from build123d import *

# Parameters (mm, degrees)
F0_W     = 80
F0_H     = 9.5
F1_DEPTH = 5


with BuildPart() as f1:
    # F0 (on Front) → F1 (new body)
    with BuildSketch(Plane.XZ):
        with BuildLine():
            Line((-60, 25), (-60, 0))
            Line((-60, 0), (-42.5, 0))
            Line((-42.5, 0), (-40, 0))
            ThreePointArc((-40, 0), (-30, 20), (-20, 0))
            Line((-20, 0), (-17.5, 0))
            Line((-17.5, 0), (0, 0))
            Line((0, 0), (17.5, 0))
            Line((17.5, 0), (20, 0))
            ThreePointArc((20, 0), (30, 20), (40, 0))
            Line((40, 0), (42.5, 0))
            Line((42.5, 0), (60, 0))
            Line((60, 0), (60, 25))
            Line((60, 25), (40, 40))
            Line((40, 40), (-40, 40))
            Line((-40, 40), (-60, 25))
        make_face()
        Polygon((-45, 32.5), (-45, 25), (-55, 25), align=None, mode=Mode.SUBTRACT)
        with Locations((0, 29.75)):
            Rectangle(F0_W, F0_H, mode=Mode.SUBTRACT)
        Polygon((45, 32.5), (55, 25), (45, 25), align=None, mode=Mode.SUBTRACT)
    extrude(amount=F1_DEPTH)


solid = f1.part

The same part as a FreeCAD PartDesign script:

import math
import FreeCAD as App
import Part
import Sketcher

V = App.Vector
Q = App.Units.Quantity


def add_polygon(sketch, points):
    """Adds a closed chain of lines whose ends are joined by coincident constraints."""
    first, n = sketch.GeometryCount, len(points)
    for a, b in zip(points, points[1:] + points[:1]):
        sketch.addGeometry(Part.LineSegment(App.Vector(*a, 0), App.Vector(*b, 0)), False)
    for i in range(n):
        sketch.addConstraint(Sketcher.Constraint("Coincident", first + i, 2, first + (i + 1) % n, 1))

doc = App.newDocument("Part")
body = doc.addObject("PartDesign::Body", "Body")

# Sketch on XZ plane
sketch1 = body.newObject("Sketcher::SketchObject", "Sketch")
sketch1.AttachmentSupport = (doc.getObject("XZ_Plane"), [""])
sketch1.MapMode = "FlatFace"
sketch1.addGeometry(Part.LineSegment(V(-60, 25, 0), V(-60, 0, 0)), False)  # 0
sketch1.addGeometry(Part.LineSegment(V(-60, 0, 0), V(-40, 0, 0)), False)  # 1
sketch1.addGeometry(Part.ArcOfCircle(Part.Circle(V(-30, 8, 0), V(0, 0, 1), 12), math.radians(-37), math.radians(217)), False)  # 2
sketch1.addGeometry(Part.LineSegment(V(-20, 0, 0), V(20, 0, 0)), False)  # 3
sketch1.addGeometry(Part.ArcOfCircle(Part.Circle(V(30, 8, 0), V(0, 0, 1), 12), math.radians(-37), math.radians(217)), False)  # 4
sketch1.addGeometry(Part.LineSegment(V(40, 0, 0), V(60, 0, 0)), False)  # 5
sketch1.addGeometry(Part.LineSegment(V(60, 0, 0), V(60, 25, 0)), False)  # 6
sketch1.addGeometry(Part.LineSegment(V(60, 25, 0), V(40, 40, 0)), False)  # 7
sketch1.addGeometry(Part.LineSegment(V(40, 40, 0), V(-40, 40, 0)), False)  # 8
sketch1.addGeometry(Part.LineSegment(V(-40, 40, 0), V(-60, 25, 0)), False)  # 9
add_polygon(sketch1, [(-55, 25), (-45, 32), (-45, 25)])  # lines 10-12
add_polygon(sketch1, [(45, 25), (45, 32), (55, 25)])  # lines 13-15
add_polygon(sketch1, [(40, 25), (-40, 25), (-40, 34), (40, 34)])  # lines 16-19
sketch1.addConstraint(Sketcher.Constraint("Coincident", 0, 2, 1, 1))
sketch1.addConstraint(Sketcher.Constraint("Coincident", 1, 2, 2, 2))
sketch1.addConstraint(Sketcher.Constraint("Coincident", 2, 1, 3, 1))
sketch1.addConstraint(Sketcher.Constraint("Coincident", 3, 2, 4, 2))
sketch1.addConstraint(Sketcher.Constraint("Coincident", 4, 1, 5, 1))
sketch1.addConstraint(Sketcher.Constraint("Coincident", 5, 2, 6, 1))
sketch1.addConstraint(Sketcher.Constraint("Coincident", 6, 2, 7, 1))
sketch1.addConstraint(Sketcher.Constraint("Coincident", 7, 2, 8, 1))
sketch1.addConstraint(Sketcher.Constraint("Coincident", 8, 2, 9, 1))
sketch1.addConstraint(Sketcher.Constraint("Coincident", 9, 2, 0, 1))
sketch1.addConstraint(Sketcher.Constraint("Vertical", 0))
sketch1.addConstraint(Sketcher.Constraint("Horizontal", 1))
sketch1.addConstraint(Sketcher.Constraint("Horizontal", 3))
sketch1.addConstraint(Sketcher.Constraint("Horizontal", 5))
sketch1.addConstraint(Sketcher.Constraint("Vertical", 6))
sketch1.addConstraint(Sketcher.Constraint("Horizontal", 8))
sketch1.addConstraint(Sketcher.Constraint("Vertical", 11))
sketch1.addConstraint(Sketcher.Constraint("Horizontal", 12))
sketch1.addConstraint(Sketcher.Constraint("Vertical", 13))
sketch1.addConstraint(Sketcher.Constraint("Horizontal", 15))
sketch1.addConstraint(Sketcher.Constraint("Horizontal", 16))
sketch1.addConstraint(Sketcher.Constraint("Vertical", 17))
sketch1.addConstraint(Sketcher.Constraint("Horizontal", 18))
sketch1.addConstraint(Sketcher.Constraint("Vertical", 19))
sketch1.addConstraint(Sketcher.Constraint("Equal", 2, 4))
sketch1.addConstraint(Sketcher.Constraint("Symmetric", 2, 1, 3, 2, -1, 1))
sketch1.addConstraint(Sketcher.Constraint("Symmetric", 1, 2, 4, 1, -1, 1))
sketch1.addConstraint(Sketcher.Constraint("Symmetric", 0, 2, 5, 2, -2))
sketch1.addConstraint(Sketcher.Constraint("Symmetric", 10, 2, 13, 2, -2))
sketch1.addConstraint(Sketcher.Constraint("Symmetric", 12, 2, 14, 2, -2))
sketch1.addConstraint(Sketcher.Constraint("Parallel", 9, 10))
sketch1.addConstraint(Sketcher.Constraint("Parallel", 7, 14))
sketch1.addConstraint(Sketcher.Constraint("Horizontal", 6, 2, 9, 2))
sketch1.addConstraint(Sketcher.Constraint("Horizontal", 9, 2, 11, 2))
sketch1.addConstraint(Sketcher.Constraint("Horizontal", 15, 2, 16, 2))
sketch1.addConstraint(Sketcher.Constraint("Vertical", 4, 1, 7, 2))
sketch1.addConstraint(Sketcher.Constraint("Vertical", 8, 2, 16, 2))
sketch1.addConstraint(Sketcher.Constraint("Vertical", 7, 2, 18, 2))
sketch1.addConstraint(Sketcher.Constraint("Radius", 2, Q("12.5 mm")))
sketch1.addConstraint(Sketcher.Constraint("DistanceX", 1, 1, 1, 2, Q("20 mm")))
sketch1.addConstraint(Sketcher.Constraint("DistanceX", 3, 1, 3, 2, Q("40 mm")))
sketch1.addConstraint(Sketcher.Constraint("DistanceX", 8, 2, 8, 1, Q("80 mm")))
sketch1.addConstraint(Sketcher.Constraint("DistanceX", 12, 2, 12, 1, Q("10 mm")))
sketch1.addConstraint(Sketcher.Constraint("DistanceY", 0, 2, 0, 1, Q("25 mm")))
sketch1.addConstraint(Sketcher.Constraint("Distance", 7, Q("25 mm")))
sketch1.addConstraint(Sketcher.Constraint("DistanceY", 17, 1, 17, 2, Q("9.5 mm")))
sketch1.addConstraint(Sketcher.Constraint("DistanceX", 10, 2, -1, 1, Q("45 mm")))
pad1 = body.newObject("PartDesign::Pad", "Pad")
pad1.Profile = sketch1
pad1.Length = 5

doc.recompute()
